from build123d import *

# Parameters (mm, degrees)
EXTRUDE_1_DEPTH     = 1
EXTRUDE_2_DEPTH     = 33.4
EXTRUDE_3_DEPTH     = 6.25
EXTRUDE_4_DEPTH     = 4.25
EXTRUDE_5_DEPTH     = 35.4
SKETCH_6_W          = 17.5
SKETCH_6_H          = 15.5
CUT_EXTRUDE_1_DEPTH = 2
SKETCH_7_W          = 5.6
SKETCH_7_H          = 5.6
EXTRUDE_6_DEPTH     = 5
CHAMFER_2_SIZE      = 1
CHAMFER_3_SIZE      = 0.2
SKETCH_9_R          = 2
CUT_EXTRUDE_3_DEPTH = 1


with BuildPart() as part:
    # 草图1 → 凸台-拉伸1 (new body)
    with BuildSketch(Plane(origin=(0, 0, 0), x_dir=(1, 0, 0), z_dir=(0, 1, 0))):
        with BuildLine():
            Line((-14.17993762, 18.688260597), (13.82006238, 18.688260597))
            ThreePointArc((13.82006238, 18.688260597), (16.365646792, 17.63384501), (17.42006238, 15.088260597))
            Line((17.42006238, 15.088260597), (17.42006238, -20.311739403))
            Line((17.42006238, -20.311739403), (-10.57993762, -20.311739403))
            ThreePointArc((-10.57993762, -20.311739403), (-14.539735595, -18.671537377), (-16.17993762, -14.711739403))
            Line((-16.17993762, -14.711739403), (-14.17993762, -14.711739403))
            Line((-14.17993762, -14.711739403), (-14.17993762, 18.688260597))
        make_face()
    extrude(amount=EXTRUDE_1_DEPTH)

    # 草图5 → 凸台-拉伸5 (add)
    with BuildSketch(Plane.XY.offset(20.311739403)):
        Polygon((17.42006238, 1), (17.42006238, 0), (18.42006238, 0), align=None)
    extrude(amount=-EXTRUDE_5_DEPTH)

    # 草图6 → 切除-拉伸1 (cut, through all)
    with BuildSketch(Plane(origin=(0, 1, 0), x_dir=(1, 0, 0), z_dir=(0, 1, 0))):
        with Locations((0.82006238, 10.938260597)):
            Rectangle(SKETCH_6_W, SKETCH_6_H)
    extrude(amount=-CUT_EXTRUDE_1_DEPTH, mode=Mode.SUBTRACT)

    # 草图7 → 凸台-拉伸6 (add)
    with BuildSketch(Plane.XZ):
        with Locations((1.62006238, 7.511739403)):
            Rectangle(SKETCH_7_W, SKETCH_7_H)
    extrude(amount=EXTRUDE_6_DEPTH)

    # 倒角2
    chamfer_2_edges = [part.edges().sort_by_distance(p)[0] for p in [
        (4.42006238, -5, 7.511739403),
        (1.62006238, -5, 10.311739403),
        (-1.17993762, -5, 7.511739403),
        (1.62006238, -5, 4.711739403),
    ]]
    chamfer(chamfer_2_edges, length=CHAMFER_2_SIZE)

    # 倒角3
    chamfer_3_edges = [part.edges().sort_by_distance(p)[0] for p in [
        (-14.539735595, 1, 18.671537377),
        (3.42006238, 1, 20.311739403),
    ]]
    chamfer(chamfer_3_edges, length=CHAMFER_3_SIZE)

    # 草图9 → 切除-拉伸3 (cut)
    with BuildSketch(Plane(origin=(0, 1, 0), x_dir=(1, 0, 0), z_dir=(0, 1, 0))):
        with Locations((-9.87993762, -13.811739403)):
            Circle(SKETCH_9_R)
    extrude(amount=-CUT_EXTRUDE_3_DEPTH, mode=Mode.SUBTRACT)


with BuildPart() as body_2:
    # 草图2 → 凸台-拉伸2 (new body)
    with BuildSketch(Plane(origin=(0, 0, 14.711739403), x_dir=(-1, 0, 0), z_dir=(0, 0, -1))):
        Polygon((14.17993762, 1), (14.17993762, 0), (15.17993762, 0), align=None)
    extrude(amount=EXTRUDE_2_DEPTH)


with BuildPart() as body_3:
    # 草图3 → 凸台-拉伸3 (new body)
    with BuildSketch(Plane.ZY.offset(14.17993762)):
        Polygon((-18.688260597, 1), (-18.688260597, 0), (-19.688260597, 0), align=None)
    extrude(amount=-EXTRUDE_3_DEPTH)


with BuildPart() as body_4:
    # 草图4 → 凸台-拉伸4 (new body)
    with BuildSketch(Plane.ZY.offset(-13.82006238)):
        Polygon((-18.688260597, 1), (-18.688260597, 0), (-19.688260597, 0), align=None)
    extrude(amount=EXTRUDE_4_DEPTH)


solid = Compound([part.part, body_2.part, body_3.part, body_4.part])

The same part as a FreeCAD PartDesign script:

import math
import FreeCAD as App
import Part
import Sketcher

V = App.Vector
Q = App.Units.Quantity


def edges_at(feature, points):
    """Names of the edges that pass closest to the given points."""
    edges = feature.Shape.Edges
    near = lambda p: min(range(len(edges)), key=lambda i: edges[i].distToShape(Part.Vertex(*p))[0])
    return sorted({f"Edge{near(p) + 1}" for p in points})

doc = App.newDocument("Part")
body = doc.addObject("PartDesign::Body", "Body")

# Sketch on XZ plane
sketch1 = doc.addObject("Sketcher::SketchObject", "Sketch")
body.addObject(sketch1)
sketch1.AttachmentSupport = (doc.XZ_Plane, [""])
sketch1.MapMode = "FlatFace"
sketch1.addGeometry(Part.LineSegment(V(13.8, -18.7, 0), V(-14.2, -18.7, 0)), False)
sketch1.addGeometry(Part.LineSegment(V(-14.2, -18.7, 0), V(-14.2, 14.7, 0)), False)
sketch1.addGeometry(Part.LineSegment(V(-14.2, 14.7, 0), V(-16.2, 14.7, 0)), False)
sketch1.addGeometry(Part.ArcOfCircle(Part.Circle(V(-10.6, 14.7, 0), V(0, 0, 1), 5.6), math.radians(90), math.radians(180)), False)
sketch1.addGeometry(Part.LineSegment(V(-10.6, 20.3, 0), V(17.4, 20.3, 0)), False)
sketch1.addGeometry(Part.LineSegment(V(17.4, 20.3, 0), V(17.4, -15.1, 0)), False)
sketch1.addGeometry(Part.ArcOfCircle(Part.Circle(V(13.8, -15.1, 0), V(0, 0, 1), 3.6), math.radians(-90), math.radians(0)), False)
sketch1.addConstraint(Sketcher.Constraint("Coincident", 0, 2, 1, 1))
sketch1.addConstraint(Sketcher.Constraint("Coincident", 1, 2, 2, 1))
sketch1.addConstraint(Sketcher.Constraint("Coincident", 2, 2, 3, 2))
sketch1.addConstraint(Sketcher.Constraint("Tangent", 3, 1, 4, 1))
sketch1.addConstraint(Sketcher.Constraint("Coincident", 4, 2, 5, 1))
sketch1.addConstraint(Sketcher.Constraint("Tangent", 5, 2, 6, 2))
sketch1.addConstraint(Sketcher.Constraint("Tangent", 6, 1, 0, 1))
sketch1.addConstraint(Sketcher.Constraint("Horizontal", 0))
sketch1.addConstraint(Sketcher.Constraint("Vertical", 1))
sketch1.addConstraint(Sketcher.Constraint("Horizontal", 2))
sketch1.addConstraint(Sketcher.Constraint("Horizontal", 4))
sketch1.addConstraint(Sketcher.Constraint("Vertical", 5))
sketch1.addConstraint(Sketcher.Constraint("Horizontal", 3, 3, 1, 2))
sketch1.addConstraint(Sketcher.Constraint("Equal", 0, 4))
sketch1.addConstraint(Sketcher.Constraint("Radius", 3, Q("5.6 mm")))
sketch1.addConstraint(Sketcher.Constraint("Radius", 6, Q("3.6 mm")))
sketch1.addConstraint(Sketcher.Constraint("DistanceX", 0, 2, 0, 1, Q("28 mm")))
sketch1.addConstraint(Sketcher.Constraint("DistanceY", 1, 1, 1, 2, Q("33.4 mm")))
sketch1.addConstraint(Sketcher.Constraint("DistanceY", -1, 1, 3, 3, Q("14.711739 mm")))
sketch1.addConstraint(Sketcher.Constraint("DistanceX", 3, 3, -1, 1, Q("10.579938 mm")))
pad1 = doc.addObject("PartDesign::Pad", "Pad")
body.addObject(pad1)
pad1.Profile = sketch1
pad1.Length = 1
pad1.Reversed = True

# Sketch on XY plane
sketch2 = doc.addObject("Sketcher::SketchObject", "Sketch001")
body.addObject(sketch2)
sketch2.AttachmentSupport = (doc.XY_Plane, [""])
sketch2.MapMode = "FlatFace"
sketch2.AttachmentOffset = App.Placement(V(0, 0, 20.311739), App.Rotation())
sketch2.addGeometry(Part.LineSegment(V(17.4, 1, 0), V(17.4, 0, 0)), False)
sketch2.addGeometry(Part.LineSegment(V(17.4, 0, 0), V(18.4, 0, 0)), False)
sketch2.addGeometry(Part.LineSegment(V(18.4, 0, 0), V(17.4, 1, 0)), False)
sketch2.addConstraint(Sketcher.Constraint("Coincident", 0, 2, 1, 1))
sketch2.addConstraint(Sketcher.Constraint("Coincident", 1, 2, 2, 1))
sketch2.addConstraint(Sketcher.Constraint("Coincident", 2, 2, 0, 1))
sketch2.addConstraint(Sketcher.Constraint("Vertical", 0))
sketch2.addConstraint(Sketcher.Constraint("Horizontal", 1))
sketch2.addConstraint(Sketcher.Constraint("PointOnObject", 0, 2, -1))
sketch2.addConstraint(Sketcher.Constraint("Equal", 1, 0))
sketch2.addConstraint(Sketcher.Constraint("DistanceX", 1, 1, 1, 2, Q("1 mm")))
sketch2.addConstraint(Sketcher.Constraint("DistanceX", -1, 1, 0, 2, Q("17.420062 mm")))
pad2 = doc.addObject("PartDesign::Pad", "Pad001")
body.addObject(pad2)
pad2.Profile = sketch2
pad2.Length = 35.4
pad2.Reversed = True

# Sketch on XZ plane
sketch3 = doc.addObject("Sketcher::SketchObject", "Sketch002")
body.addObject(sketch3)
sketch3.AttachmentSupport = (doc.XZ_Plane, [""])
sketch3.MapMode = "FlatFace"
sketch3.AttachmentOffset = App.Placement(V(0, 0, -1), App.Rotation())
sketch3.addGeometry(Part.LineSegment(V(-8, -19, 0), V(-8, -3, 0)), False)
sketch3.addGeometry(Part.LineSegment(V(-8, -3, 0), V(10, -3, 0)), False)
sketch3.addGeometry(Part.LineSegment(V(10, -3, 0), V(10, -19, 0)), False)
sketch3.addGeometry(Part.LineSegment(V(10, -19, 0), V(-8, -19, 0)), False)
sketch3.addConstraint(Sketcher.Constraint("Coincident", 0, 2, 1, 1))
sketch3.addConstraint(Sketcher.Constraint("Coincident", 1, 2, 2, 1))
sketch3.addConstraint(Sketcher.Constraint("Coincident", 2, 2, 3, 1))
sketch3.addConstraint(Sketcher.Constraint("Coincident", 3, 2, 0, 1))
sketch3.addConstraint(Sketcher.Constraint("Vertical", 0))
sketch3.addConstraint(Sketcher.Constraint("Horizontal", 1))
sketch3.addConstraint(Sketcher.Constraint("Vertical", 2))
sketch3.addConstraint(Sketcher.Constraint("Horizontal", 3))
sketch3.addConstraint(Sketcher.Constraint("DistanceX", 1, 1, 1, 2, Q("17.5 mm")))
sketch3.addConstraint(Sketcher.Constraint("DistanceY", 0, 1, 0, 2, Q("15.5 mm")))
sketch3.addConstraint(Sketcher.Constraint("DistanceY", 0, 2, -1, 1, Q("3.188261 mm")))
sketch3.addConstraint(Sketcher.Constraint("DistanceX", 0, 2, -1, 1, Q("7.929938 mm")))
pocket1 = doc.addObject("PartDesign::Pocket", "Pocket")
body.addObject(pocket1)
pocket1.Profile = sketch3
pocket1.Type = "ThroughAll"
pocket1.Reversed = True

# Sketch on XZ plane
sketch4 = doc.addObject("Sketcher::SketchObject", "Sketch003")
body.addObject(sketch4)
sketch4.AttachmentSupport = (doc.XZ_Plane, [""])
sketch4.MapMode = "FlatFace"
sketch4.addGeometry(Part.LineSegment(V(-1, 10, 0), V(-1, 5, 0)), False)
sketch4.addGeometry(Part.LineSegment(V(-1, 5, 0), V(4, 5, 0)), False)
sketch4.addGeometry(Part.LineSegment(V(4, 5, 0), V(4, 10, 0)), False)
sketch4.addGeometry(Part.LineSegment(V(4, 10, 0), V(-1, 10, 0)), False)
sketch4.addConstraint(Sketcher.Constraint("Coincident", 0, 2, 1, 1))
sketch4.addConstraint(Sketcher.Constraint("Coincident", 1, 2, 2, 1))
sketch4.addConstraint(Sketcher.Constraint("Coincident", 2, 2, 3, 1))
sketch4.addConstraint(Sketcher.Constraint("Coincident", 3, 2, 0, 1))
sketch4.addConstraint(Sketcher.Constraint("Vertical", 0))
sketch4.addConstraint(Sketcher.Constraint("Horizontal", 1))
sketch4.addConstraint(Sketcher.Constraint("Vertical", 2))
sketch4.addConstraint(Sketcher.Constraint("Horizontal", 3))
sketch4.addConstraint(Sketcher.Constraint("Equal", 3, 0))
sketch4.addConstraint(Sketcher.Constraint("DistanceX", 1, 1, 1, 2, Q("5.6 mm")))
sketch4.addConstraint(Sketcher.Constraint("DistanceY", -1, 1, 0, 2, Q("4.711739 mm")))
sketch4.addConstraint(Sketcher.Constraint("DistanceX", 0, 2, -1, 1, Q("1.179938 mm")))
pad3 = doc.addObject("PartDesign::Pad", "Pad002")
body.addObject(pad3)
pad3.Profile = sketch4
pad3.Length = 5
doc.recompute()

chamfer = doc.addObject("PartDesign::Chamfer", "Chamfer")
body.addObject(chamfer)
chamfer.Base = (pad3, edges_at(pad3, [
    (4.42, -5, 7.512),
    (1.62, -5, 10.312),
    (-1.18, -5, 7.512),
    (1.62, -5, 4.712),
]))
chamfer.Size = 1
doc.recompute()

chamfer2 = doc.addObject("PartDesign::Chamfer", "Chamfer001")
body.addObject(chamfer2)
chamfer2.Base = (chamfer, edges_at(chamfer, [(-14.54, 1, 18.672), (3.42, 1, 20.312)]))
chamfer2.Size = 0.2

# Sketch on XZ plane
sketch5 = doc.addObject("Sketcher::SketchObject", "Sketch004")
body.addObject(sketch5)
sketch5.AttachmentSupport = (doc.XZ_Plane, [""])
sketch5.MapMode = "FlatFace"
sketch5.AttachmentOffset = App.Placement(V(0, 0, -1), App.Rotation())
sketch5.addGeometry(Part.Circle(V(-9.9, 13.8, 0), V(0, 0, 1), 2), False)
sketch5.addConstraint(Sketcher.Constraint("Diameter", 0, Q("4 mm")))
sketch5.addConstraint(Sketcher.Constraint("DistanceY", -1, 1, 0, 3, Q("13.811739 mm")))
sketch5.addConstraint(Sketcher.Constraint("DistanceX", 0, 3, -1, 1, Q("9.879938 mm")))
pocket2 = doc.addObject("PartDesign::Pocket", "Pocket001")
body.addObject(pocket2)
pocket2.Profile = sketch5
pocket2.Length = 1
pocket2.Reversed = True
body2 = doc.addObject("PartDesign::Body", "Body001")

# Sketch on XY plane
sketch6 = doc.addObject("Sketcher::SketchObject", "Sketch005")
body2.addObject(sketch6)
sketch6.AttachmentSupport = (doc.getObject("XY_Plane001"), [""])
sketch6.MapMode = "FlatFace"
sketch6.AttachmentOffset = App.Placement(V(0, 0, 14.711739), App.Rotation())
sketch6.addGeometry(Part.LineSegment(V(-14.2, 1, 0), V(-14.2, 0, 0)), False)
sketch6.addGeometry(Part.LineSegment(V(-14.2, 0, 0), V(-15.2, 0, 0)), False)
sketch6.addGeometry(Part.LineSegment(V(-15.2, 0, 0), V(-14.2, 1, 0)), False)
sketch6.addConstraint(Sketcher.Constraint("Coincident", 0, 2, 1, 1))
sketch6.addConstraint(Sketcher.Constraint("Coincident", 1, 2, 2, 1))
sketch6.addConstraint(Sketcher.Constraint("Coincident", 2, 2, 0, 1))
sketch6.addConstraint(Sketcher.Constraint("Vertical", 0))
sketch6.addConstraint(Sketcher.Constraint("Horizontal", 1))
sketch6.addConstraint(Sketcher.Constraint("PointOnObject", 0, 2, -1))
sketch6.addConstraint(Sketcher.Constraint("Equal", 1, 0))
sketch6.addConstraint(Sketcher.Constraint("DistanceX", 1, 2, 1, 1, Q("1 mm")))
sketch6.addConstraint(Sketcher.Constraint("DistanceX", 0, 2, -1, 1, Q("14.179938 mm")))
pad4 = doc.addObject("PartDesign::Pad", "Pad003")
body2.addObject(pad4)
pad4.Profile = sketch6
pad4.Length = 33.4
pad4.Reversed = True
body3 = doc.addObject("PartDesign::Body", "Body002")

# Sketch on YZ plane
sketch7 = doc.addObject("Sketcher::SketchObject", "Sketch006")
body3.addObject(sketch7)
sketch7.AttachmentSupport = (doc.getObject("YZ_Plane002"), [""])
sketch7.MapMode = "FlatFace"
sketch7.AttachmentOffset = App.Placement(V(0, 0, -14.179938), App.Rotation())
sketch7.addGeometry(Part.LineSegment(V(0, -18.7, 0), V(1, -18.7, 0)), False)
sketch7.addGeometry(Part.LineSegment(V(1, -18.7, 0), V(0, -19.7, 0)), False)
sketch7.addGeometry(Part.LineSegment(V(0, -19.7, 0), V(0, -18.7, 0)), False)
sketch7.addConstraint(Sketcher.Constraint("Coincident", 0, 2, 1, 1))
sketch7.addConstraint(Sketcher.Constraint("Coincident", 1, 2, 2, 1))
sketch7.addConstraint(Sketcher.Constraint("Coincident", 2, 2, 0, 1))
sketch7.addConstraint(Sketcher.Constraint("Horizontal", 0))
sketch7.addConstraint(Sketcher.Constraint("Vertical", 2))
sketch7.addConstraint(Sketcher.Constraint("PointOnObject", 1, 2, -2))
sketch7.addConstraint(Sketcher.Constraint("Equal", 0, 2))
sketch7.addConstraint(Sketcher.Constraint("DistanceX", 0, 1, 0, 2, Q("1 mm")))
sketch7.addConstraint(Sketcher.Constraint("DistanceY", 0, 2, -1, 1, Q("18.688261 mm")))
pad5 = doc.addObject("PartDesign::Pad", "Pad004")
body3.addObject(pad5)
pad5.Profile = sketch7
pad5.Length = 6.25
body4 = doc.addObject("PartDesign::Body", "Body003")

# Sketch on YZ plane
sketch8 = doc.addObject("Sketcher::SketchObject", "Sketch007")
body4.addObject(sketch8)
sketch8.AttachmentSupport = (doc.getObject("YZ_Plane003"), [""])
sketch8.MapMode = "FlatFace"
sketch8.AttachmentOffset = App.Placement(V(0, 0, 13.820062), App.Rotation())
sketch8.addGeometry(Part.LineSegment(V(0, -18.7, 0), V(1, -18.7, 0)), False)
sketch8.addGeometry(Part.LineSegment(V(1, -18.7, 0), V(0, -19.7, 0)), False)
sketch8.addGeometry(Part.LineSegment(V(0, -19.7, 0), V(0, -18.7, 0)), False)
sketch8.addConstraint(Sketcher.Constraint("Coincident", 0, 2, 1, 1))
sketch8.addConstraint(Sketcher.Constraint("Coincident", 1, 2, 2, 1))
sketch8.addConstraint(Sketcher.Constraint("Coincident", 2, 2, 0, 1))
sketch8.addConstraint(Sketcher.Constraint("Horizontal", 0))
sketch8.addConstraint(Sketcher.Constraint("Vertical", 2))
sketch8.addConstraint(Sketcher.Constraint("PointOnObject", 1, 2, -2))
sketch8.addConstraint(Sketcher.Constraint("Equal", 0, 2))
sketch8.addConstraint(Sketcher.Constraint("DistanceX", 0, 1, 0, 2, Q("1 mm")))
sketch8.addConstraint(Sketcher.Constraint("DistanceY", 0, 2, -1, 1, Q("18.688261 mm")))
pad6 = doc.addObject("PartDesign::Pad", "Pad005")
body4.addObject(pad6)
pad6.Profile = sketch8
pad6.Length = 4.25
pad6.Reversed = True

doc.recompute()
